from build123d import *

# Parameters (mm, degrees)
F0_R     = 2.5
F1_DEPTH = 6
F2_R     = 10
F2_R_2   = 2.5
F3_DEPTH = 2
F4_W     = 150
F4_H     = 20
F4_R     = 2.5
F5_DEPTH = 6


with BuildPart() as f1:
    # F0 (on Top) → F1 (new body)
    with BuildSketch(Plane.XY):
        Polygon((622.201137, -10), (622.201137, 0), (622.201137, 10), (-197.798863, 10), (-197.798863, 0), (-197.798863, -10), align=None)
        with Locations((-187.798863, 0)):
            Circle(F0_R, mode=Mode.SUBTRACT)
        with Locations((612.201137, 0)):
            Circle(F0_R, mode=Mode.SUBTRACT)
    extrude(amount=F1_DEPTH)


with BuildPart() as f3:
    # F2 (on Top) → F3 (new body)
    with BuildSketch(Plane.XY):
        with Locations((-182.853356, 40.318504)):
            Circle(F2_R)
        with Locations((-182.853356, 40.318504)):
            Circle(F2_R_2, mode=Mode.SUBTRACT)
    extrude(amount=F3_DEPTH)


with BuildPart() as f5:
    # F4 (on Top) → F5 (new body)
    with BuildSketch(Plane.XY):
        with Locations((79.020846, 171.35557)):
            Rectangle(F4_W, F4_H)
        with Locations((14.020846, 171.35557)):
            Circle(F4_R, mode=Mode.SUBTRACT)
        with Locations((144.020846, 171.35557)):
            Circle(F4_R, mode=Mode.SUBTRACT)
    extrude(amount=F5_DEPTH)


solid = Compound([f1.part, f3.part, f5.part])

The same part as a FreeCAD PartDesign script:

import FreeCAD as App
import Part
import Sketcher
from FreeCAD import Vector


def add_polygon(sketch, points):
    """Adds a closed chain of lines whose ends are joined by coincident constraints."""
    first, n = sketch.GeometryCount, len(points)
    for a, b in zip(points, points[1:] + points[:1]):
        sketch.addGeometry(Part.LineSegment(App.Vector(*a, 0), App.Vector(*b, 0)), False)
    for i in range(n):
        sketch.addConstraint(Sketcher.Constraint("Coincident", first + i, 2, first + (i + 1) % n, 1))

doc = App.newDocument("Part")
body = doc.addObject("PartDesign::Body", "Body")

sketch1 = body.newObject("Sketcher::SketchObject", "Sketch")
sketch1.AttachmentSupport = (doc.getObject("XY_Plane"), [""])
sketch1.MapMode = "FlatFace"
add_polygon(sketch1, [(622.2, -10), (622.2, 10), (-197.8, 10), (-197.8, -10)])
sketch1.addGeometry(Part.Circle(Vector(-187.8, 0, 0), Vector(0, 0, 1), 2.5), False)
sketch1.addGeometry(Part.Circle(Vector(612.2, 0, 0), Vector(0, 0, 1), 2.5), False)
sketch1.addConstraint(Sketcher.Constraint("Vertical", 0))
sketch1.addConstraint(Sketcher.Constraint("Horizontal", 1))
sketch1.addConstraint(Sketcher.Constraint("Vertical", 2))
sketch1.addConstraint(Sketcher.Constraint("Horizontal", 3))
sketch1.addConstraint(Sketcher.Constraint("Equal", 4, 5))
sketch1.addConstraint(Sketcher.Constraint("PointOnObject", 4, 3, -1))
sketch1.addConstraint(Sketcher.Constraint("PointOnObject", 5, 3, -1))
sketch1.addConstraint(Sketcher.Constraint("Diameter", 4, 5.0))
sketch1.addConstraint(Sketcher.Constraint("DistanceX", 1, 2, 1, 1, 820.0))
sketch1.addConstraint(Sketcher.Constraint("DistanceY", 0, 1, 0, 2, 20.0))
sketch1.addConstraint(Sketcher.Constraint("DistanceY", -1, 1, 0, 2, 10.0))
sketch1.addConstraint(Sketcher.Constraint("DistanceX", 4, 3, 5, 3, 800.0))
sketch1.addConstraint(Sketcher.Constraint("DistanceX", 5, 3, 0, 2, 10.0))
sketch1.addConstraint(Sketcher.Constraint("DistanceX", 4, 3, -1, 1, 187.798863))
pad1 = body.newObject("PartDesign::Pad", "Pad")
pad1.Profile = sketch1
pad1.Length = 6
body2 = doc.addObject("PartDesign::Body", "Body001")

sketch2 = body2.newObject("Sketcher::SketchObject", "Sketch001")
sketch2.AttachmentSupport = (doc.getObject("XY_Plane001"), [""])
sketch2.MapMode = "FlatFace"
sketch2.addGeometry(Part.Circle(Vector(-182.9, 40.3, 0), Vector(0, 0, 1), 10), False)
sketch2.addGeometry(Part.Circle(Vector(-182.9, 40.3, 0), Vector(0, 0, 1), 2.5), False)
sketch2.addConstraint(Sketcher.Constraint("Coincident", 1, 3, 0, 3))
sketch2.addConstraint(Sketcher.Constraint("Diameter", 0, 20.0))
sketch2.addConstraint(Sketcher.Constraint("Diameter", 1, 5.0))
sketch2.addConstraint(Sketcher.Constraint("DistanceX", 0, 3, -1, 1, 182.853356))
sketch2.addConstraint(Sketcher.Constraint("DistanceY", -1, 1, 0, 3, 40.318504))
pad2 = body2.newObject("PartDesign::Pad", "Pad001")
pad2.Profile = sketch2
pad2.Length = 2
body3 = doc.addObject("PartDesign::Body", "Body002")

sketch3 = body3.newObject("Sketcher::SketchObject", "Sketch002")
sketch3.AttachmentSupport = (doc.getObject("XY_Plane002"), [""])
sketch3.MapMode = "FlatFace"
add_polygon(sketch3, [(4, 181.4), (4, 161.4), (154, 161.4), (154, 181.4)])
sketch3.addGeometry(Part.Circle(Vector(14, 171.4, 0), Vector(0, 0, 1), 2.5), False)
sketch3.addGeometry(Part.Circle(Vector(144, 171.4, 0), Vector(0, 0, 1), 2.5), False)
sketch3.addConstraint(Sketcher.Constraint("Vertical", 0))
sketch3.addConstraint(Sketcher.Constraint("Horizontal", 1))
sketch3.addConstraint(Sketcher.Constraint("Vertical", 2))
sketch3.addConstraint(Sketcher.Constraint("Horizontal", 3))
sketch3.addConstraint(Sketcher.Constraint("Equal", 4, 5))
sketch3.addConstraint(Sketcher.Constraint("Horizontal", 4, 3, 5, 3))
sketch3.addConstraint(Sketcher.Constraint("Diameter", 4, 5.0))
sketch3.addConstraint(Sketcher.Constraint("DistanceX", 1, 1, 1, 2, 150.0))
sketch3.addConstraint(Sketcher.Constraint("DistanceY", 0, 2, 0, 1, 20.0))
sketch3.addConstraint(Sketcher.Constraint("DistanceX", 4, 3, 5, 3, 130.0))
sketch3.addConstraint(Sketcher.Constraint("DistanceX", 0, 2, 4, 3, 10.0))
sketch3.addConstraint(Sketcher.Constraint("DistanceY", 0, 2, 4, 3, 10.0))
sketch3.addConstraint(Sketcher.Constraint("DistanceY", -1, 1, 4, 3, 171.35557))
sketch3.addConstraint(Sketcher.Constraint("DistanceX", -1, 1, 4, 3, 14.020846))
pad3 = body3.newObject("PartDesign::Pad", "Pad002")
pad3.Profile = sketch3
pad3.Length = 6

doc.recompute()
